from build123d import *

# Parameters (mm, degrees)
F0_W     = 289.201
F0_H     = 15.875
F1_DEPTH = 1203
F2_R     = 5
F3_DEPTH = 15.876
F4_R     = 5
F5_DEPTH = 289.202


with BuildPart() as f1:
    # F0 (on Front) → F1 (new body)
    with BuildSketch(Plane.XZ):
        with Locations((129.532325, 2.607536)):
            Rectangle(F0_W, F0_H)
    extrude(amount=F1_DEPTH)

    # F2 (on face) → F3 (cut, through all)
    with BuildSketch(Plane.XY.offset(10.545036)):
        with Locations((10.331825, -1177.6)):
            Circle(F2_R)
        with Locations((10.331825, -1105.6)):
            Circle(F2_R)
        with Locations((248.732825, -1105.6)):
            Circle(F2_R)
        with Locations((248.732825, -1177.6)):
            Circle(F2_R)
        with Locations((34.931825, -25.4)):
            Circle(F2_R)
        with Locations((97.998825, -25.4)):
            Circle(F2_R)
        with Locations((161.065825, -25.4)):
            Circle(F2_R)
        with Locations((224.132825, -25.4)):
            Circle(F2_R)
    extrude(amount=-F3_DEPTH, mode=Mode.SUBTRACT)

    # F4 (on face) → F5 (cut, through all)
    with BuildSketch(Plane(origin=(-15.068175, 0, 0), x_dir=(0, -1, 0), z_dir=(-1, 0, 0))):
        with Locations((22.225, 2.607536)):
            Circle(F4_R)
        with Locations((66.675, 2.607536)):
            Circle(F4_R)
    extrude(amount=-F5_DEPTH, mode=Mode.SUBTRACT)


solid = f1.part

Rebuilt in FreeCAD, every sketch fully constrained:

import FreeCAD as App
import Part
import Sketcher
from FreeCAD import Vector
Q = App.Units.Quantity

doc = App.newDocument("Part")
params = doc.addObject("Spreadsheet::Sheet", "Params")
for row, (alias, value) in enumerate([
    ("pad1_length", "1203 mm"),
    ("sketch2_diameter", "10 mm"),
    ("sketch3_diameter", "10 mm"),
], start=1):
    params.set(f"A{row}", alias)
    params.set(f"B{row}", "=" + value)
    params.setAlias(f"B{row}", alias)

body = doc.addObject("PartDesign::Body", "Body")

# Sketch on XZ plane
sketch1 = body.newObject("Sketcher::SketchObject", "Sketch")
sketch1.AttachmentSupport = (doc.getObject("XZ_Plane"), [""])
sketch1.MapMode = "FlatFace"
sketch1.addGeometry([
    Part.LineSegment(Vector(-15, 11, 0), Vector(-15, -5, 0)),
    Part.LineSegment(Vector(-15, -5, 0), Vector(274, -5, 0)),
    Part.LineSegment(Vector(274, -5, 0), Vector(274, 11, 0)),
    Part.LineSegment(Vector(274, 11, 0), Vector(-15, 11, 0)),
], False)
sketch1.addConstraint([
    Sketcher.Constraint("Coincident", 0, 2, 1, 1),
    Sketcher.Constraint("Coincident", 1, 2, 2, 1),
    Sketcher.Constraint("Coincident", 2, 2, 3, 1),
    Sketcher.Constraint("Coincident", 3, 2, 0, 1),
    Sketcher.Constraint("Vertical", 0),
    Sketcher.Constraint("Horizontal", 1),
    Sketcher.Constraint("Vertical", 2),
    Sketcher.Constraint("Horizontal", 3),
    Sketcher.Constraint("DistanceX", 1, 1, 1, 2, Q("289.201 mm")),
    Sketcher.Constraint("DistanceY", 0, 2, 0, 1, Q("15.875 mm")),
    Sketcher.Constraint("DistanceX", 0, 2, -1, 1, Q("15.068175 mm")),
    Sketcher.Constraint("DistanceY", 0, 2, -1, 1, Q("5.329964 mm")),
])
pad1 = body.newObject("PartDesign::Pad", "Pad")
pad1.Profile = sketch1
pad1.setExpression("Length", "Params.pad1_length")

# Sketch on XY plane
sketch2 = body.newObject("Sketcher::SketchObject", "Sketch001")
sketch2.AttachmentSupport = (doc.getObject("XY_Plane"), [""])
sketch2.MapMode = "FlatFace"
sketch2.AttachmentOffset = App.Placement(Vector(0, 0, 10.545036), App.Rotation())
sketch2.addGeometry([
    Part.Circle(Vector(10, -1178, 0), Vector(0, 0, 1), 5),  # 0
    Part.Circle(Vector(10, -1106, 0), Vector(0, 0, 1), 5),  # 1
    Part.Circle(Vector(249, -1106, 0), Vector(0, 0, 1), 5),  # 2
    Part.Circle(Vector(249, -1178, 0), Vector(0, 0, 1), 5),  # 3
    Part.Circle(Vector(35, -25, 0), Vector(0, 0, 1), 5),  # 4
    Part.Circle(Vector(98, -25, 0), Vector(0, 0, 1), 5),  # 5
    Part.Circle(Vector(161, -25, 0), Vector(0, 0, 1), 5),  # 6
    Part.Circle(Vector(224, -25, 0), Vector(0, 0, 1), 5),  # 7
], False)
sketch2.addConstraint([
    Sketcher.Constraint("Equal", 0, 1),
    Sketcher.Constraint("Equal", 1, 2),
    Sketcher.Constraint("Equal", 2, 3),
    Sketcher.Constraint("Equal", 3, 4),
    Sketcher.Constraint("Equal", 4, 5),
    Sketcher.Constraint("Equal", 5, 6),
    Sketcher.Constraint("Equal", 6, 7),
    Sketcher.Constraint("Horizontal", 1, 3, 2, 3),
    Sketcher.Constraint("Horizontal", 0, 3, 3, 3),
    Sketcher.Constraint("Horizontal", 4, 3, 5, 3),
    Sketcher.Constraint("Horizontal", 5, 3, 6, 3),
    Sketcher.Constraint("Horizontal", 6, 3, 7, 3),
    Sketcher.Constraint("Vertical", 0, 3, 1, 3),
    Sketcher.Constraint("Vertical", 2, 3, 3, 3),
    Sketcher.Constraint("Diameter", 0, Q("10 mm")),
    Sketcher.Constraint("DistanceY", 0, 3, 1, 3, Q("72 mm")),
    Sketcher.Constraint("DistanceY", 0, 3, -1, 1, Q("1177.6 mm")),
    Sketcher.Constraint("DistanceY", 4, 3, -1, 1, Q("25.4 mm")),
    Sketcher.Constraint("DistanceX", 1, 3, 4, 3, Q("24.6 mm")),
    Sketcher.Constraint("DistanceX", 7, 3, 2, 3, Q("24.6 mm")),
    Sketcher.Constraint("DistanceX", 1, 3, 2, 3, Q("238.401 mm")),
    Sketcher.Constraint("DistanceX", 4, 3, 5, 3, Q("63.067 mm")),
    Sketcher.Constraint("DistanceX", 5, 3, 6, 3, Q("63.067 mm")),
    Sketcher.Constraint("DistanceX", -1, 1, 0, 3, Q("10.331825 mm")),
])
sketch2.setExpression("Constraints[14]", "Params.sketch2_diameter")
pocket1 = body.newObject("PartDesign::Pocket", "Pocket")
pocket1.Profile = sketch2
pocket1.Type = "ThroughAll"

# Sketch on YZ plane
sketch3 = body.newObject("Sketcher::SketchObject", "Sketch002")
sketch3.AttachmentSupport = (doc.getObject("YZ_Plane"), [""])
sketch3.MapMode = "FlatFace"
sketch3.AttachmentOffset = App.Placement(Vector(0, 0, -15.068175), App.Rotation())
sketch3.addGeometry([
    Part.Circle(Vector(-22, 3, 0), Vector(0, 0, 1), 5),
    Part.Circle(Vector(-67, 3, 0), Vector(0, 0, 1), 5),
], False)
sketch3.addConstraint([
    Sketcher.Constraint("Equal", 0, 1),
    Sketcher.Constraint("Horizontal", 0, 3, 1, 3),
    Sketcher.Constraint("Diameter", 0, Q("10 mm")),
    Sketcher.Constraint("DistanceX", 1, 3, 0, 3, Q("44.45 mm")),
    Sketcher.Constraint("DistanceX", 0, 3, -1, 1, Q("22.225 mm")),
    Sketcher.Constraint("DistanceY", -1, 1, 0, 3, Q("2.607536 mm")),
])
sketch3.setExpression("Constraints[2]", "Params.sketch3_diameter")
pocket2 = body.newObject("PartDesign::Pocket", "Pocket001")
pocket2.Profile = sketch3
pocket2.Type = "ThroughAll"
pocket2.Reversed = True

doc.recompute()
